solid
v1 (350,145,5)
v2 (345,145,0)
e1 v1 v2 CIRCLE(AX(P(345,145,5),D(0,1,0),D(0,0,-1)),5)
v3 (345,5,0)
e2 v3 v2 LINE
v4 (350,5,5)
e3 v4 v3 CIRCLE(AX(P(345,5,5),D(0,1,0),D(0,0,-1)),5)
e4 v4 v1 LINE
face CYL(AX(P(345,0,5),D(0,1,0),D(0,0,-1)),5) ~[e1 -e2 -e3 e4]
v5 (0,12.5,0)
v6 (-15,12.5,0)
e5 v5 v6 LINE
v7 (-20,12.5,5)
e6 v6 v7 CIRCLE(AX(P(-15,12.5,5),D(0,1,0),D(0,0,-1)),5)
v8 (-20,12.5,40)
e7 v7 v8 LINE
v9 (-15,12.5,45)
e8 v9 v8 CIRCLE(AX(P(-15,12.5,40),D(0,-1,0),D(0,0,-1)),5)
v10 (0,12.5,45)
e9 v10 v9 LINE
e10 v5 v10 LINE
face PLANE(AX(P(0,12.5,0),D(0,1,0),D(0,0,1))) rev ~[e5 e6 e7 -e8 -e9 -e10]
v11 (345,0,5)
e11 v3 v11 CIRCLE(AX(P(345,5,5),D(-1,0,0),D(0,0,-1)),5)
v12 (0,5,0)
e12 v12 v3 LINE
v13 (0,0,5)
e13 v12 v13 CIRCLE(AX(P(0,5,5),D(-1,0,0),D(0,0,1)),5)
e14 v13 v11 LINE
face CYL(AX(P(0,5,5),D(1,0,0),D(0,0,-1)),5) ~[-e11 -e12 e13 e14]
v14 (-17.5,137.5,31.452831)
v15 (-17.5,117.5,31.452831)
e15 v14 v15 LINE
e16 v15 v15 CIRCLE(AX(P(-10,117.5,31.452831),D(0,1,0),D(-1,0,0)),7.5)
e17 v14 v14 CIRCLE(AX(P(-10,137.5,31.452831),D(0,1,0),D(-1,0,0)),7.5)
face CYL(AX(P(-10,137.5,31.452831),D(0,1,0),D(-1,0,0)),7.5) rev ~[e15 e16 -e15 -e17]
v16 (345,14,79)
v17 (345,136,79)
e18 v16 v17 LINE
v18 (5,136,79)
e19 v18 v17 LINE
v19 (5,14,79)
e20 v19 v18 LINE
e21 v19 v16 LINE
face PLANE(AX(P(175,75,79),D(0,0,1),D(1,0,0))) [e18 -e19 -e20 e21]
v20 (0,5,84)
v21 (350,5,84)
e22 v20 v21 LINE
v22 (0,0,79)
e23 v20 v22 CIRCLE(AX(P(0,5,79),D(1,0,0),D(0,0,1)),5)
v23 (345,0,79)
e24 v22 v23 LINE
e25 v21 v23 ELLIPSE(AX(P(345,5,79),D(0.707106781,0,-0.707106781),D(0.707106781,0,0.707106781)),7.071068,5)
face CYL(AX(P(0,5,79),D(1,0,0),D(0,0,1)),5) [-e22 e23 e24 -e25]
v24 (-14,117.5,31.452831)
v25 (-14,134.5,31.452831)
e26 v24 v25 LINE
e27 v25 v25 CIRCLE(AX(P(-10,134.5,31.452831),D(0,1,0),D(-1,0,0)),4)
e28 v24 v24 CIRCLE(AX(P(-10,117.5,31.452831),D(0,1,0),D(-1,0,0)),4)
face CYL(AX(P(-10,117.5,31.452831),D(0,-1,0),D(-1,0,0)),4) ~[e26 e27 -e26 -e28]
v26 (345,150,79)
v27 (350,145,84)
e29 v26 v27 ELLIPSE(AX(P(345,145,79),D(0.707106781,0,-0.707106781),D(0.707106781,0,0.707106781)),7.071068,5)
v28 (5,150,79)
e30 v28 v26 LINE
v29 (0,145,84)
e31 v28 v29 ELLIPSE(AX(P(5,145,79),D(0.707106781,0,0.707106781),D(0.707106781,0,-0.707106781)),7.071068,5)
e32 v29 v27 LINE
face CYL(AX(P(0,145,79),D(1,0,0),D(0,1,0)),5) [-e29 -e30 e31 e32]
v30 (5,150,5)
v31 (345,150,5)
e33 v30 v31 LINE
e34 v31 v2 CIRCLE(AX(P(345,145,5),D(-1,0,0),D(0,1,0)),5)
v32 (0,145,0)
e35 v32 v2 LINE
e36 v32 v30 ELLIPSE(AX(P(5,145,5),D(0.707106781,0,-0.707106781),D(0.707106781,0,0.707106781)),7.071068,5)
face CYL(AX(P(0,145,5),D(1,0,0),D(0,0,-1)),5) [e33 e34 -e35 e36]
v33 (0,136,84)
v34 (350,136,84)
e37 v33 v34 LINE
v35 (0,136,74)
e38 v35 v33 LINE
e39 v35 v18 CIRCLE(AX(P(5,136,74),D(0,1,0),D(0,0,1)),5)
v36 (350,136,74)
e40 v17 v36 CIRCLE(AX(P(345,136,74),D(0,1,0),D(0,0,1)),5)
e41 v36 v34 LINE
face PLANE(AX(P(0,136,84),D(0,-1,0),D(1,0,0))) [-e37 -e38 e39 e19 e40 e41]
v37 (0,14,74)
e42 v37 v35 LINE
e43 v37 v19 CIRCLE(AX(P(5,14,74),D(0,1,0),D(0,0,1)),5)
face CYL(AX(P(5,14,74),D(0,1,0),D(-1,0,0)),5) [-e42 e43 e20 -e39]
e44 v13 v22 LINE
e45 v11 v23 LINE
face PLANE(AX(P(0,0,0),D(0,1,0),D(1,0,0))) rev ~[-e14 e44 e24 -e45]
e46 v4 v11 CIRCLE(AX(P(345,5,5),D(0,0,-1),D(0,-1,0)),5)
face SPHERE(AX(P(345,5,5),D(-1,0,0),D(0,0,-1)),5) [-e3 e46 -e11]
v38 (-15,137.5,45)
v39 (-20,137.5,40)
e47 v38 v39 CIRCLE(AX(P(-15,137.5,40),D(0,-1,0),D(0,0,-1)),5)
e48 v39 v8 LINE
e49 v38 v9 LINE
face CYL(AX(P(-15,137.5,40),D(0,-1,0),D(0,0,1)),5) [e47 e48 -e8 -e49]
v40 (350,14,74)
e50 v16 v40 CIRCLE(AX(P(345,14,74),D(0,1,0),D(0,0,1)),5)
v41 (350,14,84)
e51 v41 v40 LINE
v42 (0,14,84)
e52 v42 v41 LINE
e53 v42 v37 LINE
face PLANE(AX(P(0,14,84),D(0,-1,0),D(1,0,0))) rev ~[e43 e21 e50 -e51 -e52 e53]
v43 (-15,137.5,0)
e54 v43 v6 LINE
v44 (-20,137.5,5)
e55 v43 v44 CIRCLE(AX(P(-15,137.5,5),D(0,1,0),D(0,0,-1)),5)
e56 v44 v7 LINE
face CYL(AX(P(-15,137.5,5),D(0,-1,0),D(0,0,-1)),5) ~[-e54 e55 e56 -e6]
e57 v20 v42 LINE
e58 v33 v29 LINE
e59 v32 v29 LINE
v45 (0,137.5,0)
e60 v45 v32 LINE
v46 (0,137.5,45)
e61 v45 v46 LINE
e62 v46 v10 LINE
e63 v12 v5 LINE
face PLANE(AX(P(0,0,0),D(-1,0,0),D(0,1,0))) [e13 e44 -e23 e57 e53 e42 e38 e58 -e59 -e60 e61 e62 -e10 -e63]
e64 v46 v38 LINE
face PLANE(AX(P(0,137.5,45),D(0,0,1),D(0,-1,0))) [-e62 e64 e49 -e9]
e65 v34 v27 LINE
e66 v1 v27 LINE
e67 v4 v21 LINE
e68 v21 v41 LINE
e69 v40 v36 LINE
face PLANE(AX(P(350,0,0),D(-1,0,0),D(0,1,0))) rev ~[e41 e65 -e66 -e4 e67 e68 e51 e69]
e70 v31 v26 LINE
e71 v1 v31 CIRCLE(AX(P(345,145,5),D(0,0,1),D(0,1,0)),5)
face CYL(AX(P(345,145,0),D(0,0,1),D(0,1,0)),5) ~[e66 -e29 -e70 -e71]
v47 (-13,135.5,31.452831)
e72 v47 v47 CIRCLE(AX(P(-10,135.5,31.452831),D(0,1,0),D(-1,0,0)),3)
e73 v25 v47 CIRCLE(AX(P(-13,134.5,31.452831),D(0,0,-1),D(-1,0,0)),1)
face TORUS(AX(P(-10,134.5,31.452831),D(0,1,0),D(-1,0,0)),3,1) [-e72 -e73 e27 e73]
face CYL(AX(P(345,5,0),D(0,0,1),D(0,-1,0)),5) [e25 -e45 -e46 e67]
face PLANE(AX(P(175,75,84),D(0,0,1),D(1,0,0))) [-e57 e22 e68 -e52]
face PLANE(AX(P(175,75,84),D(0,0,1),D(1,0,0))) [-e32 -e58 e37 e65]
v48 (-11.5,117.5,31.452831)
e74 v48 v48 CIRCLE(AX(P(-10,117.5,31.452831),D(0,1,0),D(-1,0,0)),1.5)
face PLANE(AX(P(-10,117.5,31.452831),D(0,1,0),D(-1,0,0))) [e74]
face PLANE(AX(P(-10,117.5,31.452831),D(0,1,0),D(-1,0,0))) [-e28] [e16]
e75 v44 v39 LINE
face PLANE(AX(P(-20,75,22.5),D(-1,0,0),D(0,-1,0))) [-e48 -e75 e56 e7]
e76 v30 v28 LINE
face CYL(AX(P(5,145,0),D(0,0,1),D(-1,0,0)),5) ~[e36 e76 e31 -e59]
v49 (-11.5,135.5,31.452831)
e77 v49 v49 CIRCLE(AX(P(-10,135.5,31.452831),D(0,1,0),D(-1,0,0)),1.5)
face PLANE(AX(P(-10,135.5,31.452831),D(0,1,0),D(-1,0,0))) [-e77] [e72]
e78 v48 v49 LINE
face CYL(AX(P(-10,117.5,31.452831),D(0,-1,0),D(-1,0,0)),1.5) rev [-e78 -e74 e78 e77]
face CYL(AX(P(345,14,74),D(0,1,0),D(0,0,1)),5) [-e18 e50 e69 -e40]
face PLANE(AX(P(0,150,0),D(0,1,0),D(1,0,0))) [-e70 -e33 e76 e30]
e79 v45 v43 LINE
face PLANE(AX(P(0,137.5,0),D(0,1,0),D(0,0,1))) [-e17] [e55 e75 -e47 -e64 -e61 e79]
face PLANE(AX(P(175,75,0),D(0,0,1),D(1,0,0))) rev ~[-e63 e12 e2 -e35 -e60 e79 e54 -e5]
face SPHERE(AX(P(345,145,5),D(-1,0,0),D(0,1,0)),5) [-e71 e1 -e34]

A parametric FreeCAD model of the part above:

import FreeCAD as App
import Part
import Sketcher


def edges_at(feature, points):
    """Names of the edges that pass closest to the given points."""
    edges = feature.Shape.Edges
    near = lambda p: min(range(len(edges)), key=lambda i: edges[i].distToShape(Part.Vertex(*p))[0])
    return sorted({f"Edge{near(p) + 1}" for p in points})


def add_polygon(sketch, points):
    """Adds a closed chain of lines whose ends are joined by coincident constraints."""
    first, n = sketch.GeometryCount, len(points)
    for a, b in zip(points, points[1:] + points[:1]):
        sketch.addGeometry(Part.LineSegment(App.Vector(*a, 0), App.Vector(*b, 0)), False)
    for i in range(n):
        sketch.addConstraint(Sketcher.Constraint("Coincident", first + i, 2, first + (i + 1) % n, 1))

doc = App.newDocument("Part")
body = doc.addObject("PartDesign::Body", "Body")

# Sketch on XY plane
sketch1 = body.newObject("Sketcher::SketchObject", "Sketch")
sketch1.AttachmentSupport = (doc.getObject("XY_Plane"), [""])
sketch1.MapMode = "FlatFace"
add_polygon(sketch1, [(0, 150), (0, 0), (350, 0), (350, 150)])  # lines 0-3
sketch1.addConstraint([
    Sketcher.Constraint("Vertical", 0),
    Sketcher.Constraint("Horizontal", 1),
    Sketcher.Constraint("Vertical", 2),
    Sketcher.Constraint("Horizontal", 3),
    Sketcher.Constraint("Coincident", 0, 2, -1, 1),
    Sketcher.Constraint("DistanceX", 1, 1, 1, 2, 350.0),
    Sketcher.Constraint("DistanceY", 0, 2, 0, 1, 150.0),
])
pad1 = body.newObject("PartDesign::Pad", "Pad")
pad1.Profile = sketch1
pad1.Length = 84

# Sketch on XY plane
sketch2 = body.newObject("Sketcher::SketchObject", "Sketch001")
sketch2.AttachmentSupport = (doc.getObject("XY_Plane"), [""])
sketch2.MapMode = "FlatFace"
sketch2.AttachmentOffset = App.Placement(App.Vector(0, 0, 84), App.Rotation())
add_polygon(sketch2, [(0, 136), (0, 14), (350, 14), (350, 136)])  # lines 0-3
sketch2.addConstraint([
    Sketcher.Constraint("Vertical", 0),
    Sketcher.Constraint("Horizontal", 1),
    Sketcher.Constraint("Vertical", 2),
    Sketcher.Constraint("Horizontal", 3),
    Sketcher.Constraint("PointOnObject", 0, 2, -2),
    Sketcher.Constraint("DistanceX", 1, 1, 1, 2, 350.0),
    Sketcher.Constraint("DistanceY", 0, 2, 0, 1, 122.0),
    Sketcher.Constraint("DistanceY", -1, 1, 0, 2, 14.0),
])
pocket1 = body.newObject("PartDesign::Pocket", "Pocket")
pocket1.Profile = sketch2
pocket1.Length = 5

# Sketch on YZ plane
sketch3 = body.newObject("Sketcher::SketchObject", "Sketch002")
sketch3.AttachmentSupport = (doc.getObject("YZ_Plane"), [""])
sketch3.MapMode = "FlatFace"
add_polygon(sketch3, [(138, 45), (138, 0), (12, 0), (12, 45)])  # lines 0-3
sketch3.addConstraint([
    Sketcher.Constraint("Vertical", 0),
    Sketcher.Constraint("Horizontal", 1),
    Sketcher.Constraint("Vertical", 2),
    Sketcher.Constraint("Horizontal", 3),
    Sketcher.Constraint("PointOnObject", 0, 2, -1),
    Sketcher.Constraint("DistanceX", 1, 2, 1, 1, 125.0),
    Sketcher.Constraint("DistanceY", 0, 2, 0, 1, 45.0),
    Sketcher.Constraint("DistanceX", -1, 1, 0, 2, 137.5),
])
pad2 = body.newObject("PartDesign::Pad", "Pad001")
pad2.Profile = sketch3
pad2.Length = 20
pad2.Reversed = True

# Sketch on XZ plane
sketch4 = body.newObject("Sketcher::SketchObject", "Sketch003")
sketch4.AttachmentSupport = (doc.getObject("XZ_Plane"), [""])
sketch4.MapMode = "FlatFace"
sketch4.AttachmentOffset = App.Placement(App.Vector(0, 0, -137.5), App.Rotation())
sketch4.addGeometry(Part.Circle(App.Vector(-10, 31, 0), App.Vector(0, 0, 1), 8), False)
sketch4.addConstraint([
    Sketcher.Constraint("Diameter", 0, 15.0),
    Sketcher.Constraint("DistanceX", 0, 3, -1, 1, 10.0),
    Sketcher.Constraint("DistanceY", -1, 1, 0, 3, 31.452831),
])
pocket2 = body.newObject("PartDesign::Pocket", "Pocket001")
pocket2.Profile = sketch4
pocket2.Length = 20
pocket2.Reversed = True

# Sketch on XZ plane
sketch5 = body.newObject("Sketcher::SketchObject", "Sketch004")
sketch5.AttachmentSupport = (doc.getObject("XZ_Plane"), [""])
sketch5.MapMode = "FlatFace"
sketch5.AttachmentOffset = App.Placement(App.Vector(0, 0, -117.5), App.Rotation())
sketch5.addGeometry([
    Part.Circle(App.Vector(-10, 31.5, 0), App.Vector(0, 0, 1), 4),
    Part.Circle(App.Vector(-10, 31.5, 0), App.Vector(0, 0, 1), 1.5),
], False)
sketch5.addConstraint([
    Sketcher.Constraint("Coincident", 1, 3, 0, 3),
    Sketcher.Constraint("Diameter", 0, 8.0),
    Sketcher.Constraint("Diameter", 1, 3.0),
    Sketcher.Constraint("DistanceX", 0, 3, -1, 1, 10.0),
    Sketcher.Constraint("DistanceY", -1, 1, 0, 3, 31.452831),
])
pad3 = body.newObject("PartDesign::Pad", "Pad002")
pad3.Profile = sketch5
pad3.Length = 18
pad3.Reversed = True
doc.recompute()

fillet = body.newObject("PartDesign::Fillet", "Fillet")
fillet.Base = (pad3, edges_at(pad3, [
    (175, 150, 84),
    (175, 150, 0),
    (175, 0, 84),
    (175, 0, 0),
    (350, 150, 42),
    (350, 75, 0),
    (350, 75, 79),
    (350, 0, 42),
    (0, 75, 79),
    (0, 150, 42),
    (-20, 75, 45),
    (-20, 75, 0),
]))
fillet.Radius = 5
doc.recompute()

fillet2 = body.newObject("PartDesign::Fillet", "Fillet001")
fillet2.Base = (fillet, edges_at(fillet, [(-6, 135.5, 31.453)]))
fillet2.Radius = 1

doc.recompute()
